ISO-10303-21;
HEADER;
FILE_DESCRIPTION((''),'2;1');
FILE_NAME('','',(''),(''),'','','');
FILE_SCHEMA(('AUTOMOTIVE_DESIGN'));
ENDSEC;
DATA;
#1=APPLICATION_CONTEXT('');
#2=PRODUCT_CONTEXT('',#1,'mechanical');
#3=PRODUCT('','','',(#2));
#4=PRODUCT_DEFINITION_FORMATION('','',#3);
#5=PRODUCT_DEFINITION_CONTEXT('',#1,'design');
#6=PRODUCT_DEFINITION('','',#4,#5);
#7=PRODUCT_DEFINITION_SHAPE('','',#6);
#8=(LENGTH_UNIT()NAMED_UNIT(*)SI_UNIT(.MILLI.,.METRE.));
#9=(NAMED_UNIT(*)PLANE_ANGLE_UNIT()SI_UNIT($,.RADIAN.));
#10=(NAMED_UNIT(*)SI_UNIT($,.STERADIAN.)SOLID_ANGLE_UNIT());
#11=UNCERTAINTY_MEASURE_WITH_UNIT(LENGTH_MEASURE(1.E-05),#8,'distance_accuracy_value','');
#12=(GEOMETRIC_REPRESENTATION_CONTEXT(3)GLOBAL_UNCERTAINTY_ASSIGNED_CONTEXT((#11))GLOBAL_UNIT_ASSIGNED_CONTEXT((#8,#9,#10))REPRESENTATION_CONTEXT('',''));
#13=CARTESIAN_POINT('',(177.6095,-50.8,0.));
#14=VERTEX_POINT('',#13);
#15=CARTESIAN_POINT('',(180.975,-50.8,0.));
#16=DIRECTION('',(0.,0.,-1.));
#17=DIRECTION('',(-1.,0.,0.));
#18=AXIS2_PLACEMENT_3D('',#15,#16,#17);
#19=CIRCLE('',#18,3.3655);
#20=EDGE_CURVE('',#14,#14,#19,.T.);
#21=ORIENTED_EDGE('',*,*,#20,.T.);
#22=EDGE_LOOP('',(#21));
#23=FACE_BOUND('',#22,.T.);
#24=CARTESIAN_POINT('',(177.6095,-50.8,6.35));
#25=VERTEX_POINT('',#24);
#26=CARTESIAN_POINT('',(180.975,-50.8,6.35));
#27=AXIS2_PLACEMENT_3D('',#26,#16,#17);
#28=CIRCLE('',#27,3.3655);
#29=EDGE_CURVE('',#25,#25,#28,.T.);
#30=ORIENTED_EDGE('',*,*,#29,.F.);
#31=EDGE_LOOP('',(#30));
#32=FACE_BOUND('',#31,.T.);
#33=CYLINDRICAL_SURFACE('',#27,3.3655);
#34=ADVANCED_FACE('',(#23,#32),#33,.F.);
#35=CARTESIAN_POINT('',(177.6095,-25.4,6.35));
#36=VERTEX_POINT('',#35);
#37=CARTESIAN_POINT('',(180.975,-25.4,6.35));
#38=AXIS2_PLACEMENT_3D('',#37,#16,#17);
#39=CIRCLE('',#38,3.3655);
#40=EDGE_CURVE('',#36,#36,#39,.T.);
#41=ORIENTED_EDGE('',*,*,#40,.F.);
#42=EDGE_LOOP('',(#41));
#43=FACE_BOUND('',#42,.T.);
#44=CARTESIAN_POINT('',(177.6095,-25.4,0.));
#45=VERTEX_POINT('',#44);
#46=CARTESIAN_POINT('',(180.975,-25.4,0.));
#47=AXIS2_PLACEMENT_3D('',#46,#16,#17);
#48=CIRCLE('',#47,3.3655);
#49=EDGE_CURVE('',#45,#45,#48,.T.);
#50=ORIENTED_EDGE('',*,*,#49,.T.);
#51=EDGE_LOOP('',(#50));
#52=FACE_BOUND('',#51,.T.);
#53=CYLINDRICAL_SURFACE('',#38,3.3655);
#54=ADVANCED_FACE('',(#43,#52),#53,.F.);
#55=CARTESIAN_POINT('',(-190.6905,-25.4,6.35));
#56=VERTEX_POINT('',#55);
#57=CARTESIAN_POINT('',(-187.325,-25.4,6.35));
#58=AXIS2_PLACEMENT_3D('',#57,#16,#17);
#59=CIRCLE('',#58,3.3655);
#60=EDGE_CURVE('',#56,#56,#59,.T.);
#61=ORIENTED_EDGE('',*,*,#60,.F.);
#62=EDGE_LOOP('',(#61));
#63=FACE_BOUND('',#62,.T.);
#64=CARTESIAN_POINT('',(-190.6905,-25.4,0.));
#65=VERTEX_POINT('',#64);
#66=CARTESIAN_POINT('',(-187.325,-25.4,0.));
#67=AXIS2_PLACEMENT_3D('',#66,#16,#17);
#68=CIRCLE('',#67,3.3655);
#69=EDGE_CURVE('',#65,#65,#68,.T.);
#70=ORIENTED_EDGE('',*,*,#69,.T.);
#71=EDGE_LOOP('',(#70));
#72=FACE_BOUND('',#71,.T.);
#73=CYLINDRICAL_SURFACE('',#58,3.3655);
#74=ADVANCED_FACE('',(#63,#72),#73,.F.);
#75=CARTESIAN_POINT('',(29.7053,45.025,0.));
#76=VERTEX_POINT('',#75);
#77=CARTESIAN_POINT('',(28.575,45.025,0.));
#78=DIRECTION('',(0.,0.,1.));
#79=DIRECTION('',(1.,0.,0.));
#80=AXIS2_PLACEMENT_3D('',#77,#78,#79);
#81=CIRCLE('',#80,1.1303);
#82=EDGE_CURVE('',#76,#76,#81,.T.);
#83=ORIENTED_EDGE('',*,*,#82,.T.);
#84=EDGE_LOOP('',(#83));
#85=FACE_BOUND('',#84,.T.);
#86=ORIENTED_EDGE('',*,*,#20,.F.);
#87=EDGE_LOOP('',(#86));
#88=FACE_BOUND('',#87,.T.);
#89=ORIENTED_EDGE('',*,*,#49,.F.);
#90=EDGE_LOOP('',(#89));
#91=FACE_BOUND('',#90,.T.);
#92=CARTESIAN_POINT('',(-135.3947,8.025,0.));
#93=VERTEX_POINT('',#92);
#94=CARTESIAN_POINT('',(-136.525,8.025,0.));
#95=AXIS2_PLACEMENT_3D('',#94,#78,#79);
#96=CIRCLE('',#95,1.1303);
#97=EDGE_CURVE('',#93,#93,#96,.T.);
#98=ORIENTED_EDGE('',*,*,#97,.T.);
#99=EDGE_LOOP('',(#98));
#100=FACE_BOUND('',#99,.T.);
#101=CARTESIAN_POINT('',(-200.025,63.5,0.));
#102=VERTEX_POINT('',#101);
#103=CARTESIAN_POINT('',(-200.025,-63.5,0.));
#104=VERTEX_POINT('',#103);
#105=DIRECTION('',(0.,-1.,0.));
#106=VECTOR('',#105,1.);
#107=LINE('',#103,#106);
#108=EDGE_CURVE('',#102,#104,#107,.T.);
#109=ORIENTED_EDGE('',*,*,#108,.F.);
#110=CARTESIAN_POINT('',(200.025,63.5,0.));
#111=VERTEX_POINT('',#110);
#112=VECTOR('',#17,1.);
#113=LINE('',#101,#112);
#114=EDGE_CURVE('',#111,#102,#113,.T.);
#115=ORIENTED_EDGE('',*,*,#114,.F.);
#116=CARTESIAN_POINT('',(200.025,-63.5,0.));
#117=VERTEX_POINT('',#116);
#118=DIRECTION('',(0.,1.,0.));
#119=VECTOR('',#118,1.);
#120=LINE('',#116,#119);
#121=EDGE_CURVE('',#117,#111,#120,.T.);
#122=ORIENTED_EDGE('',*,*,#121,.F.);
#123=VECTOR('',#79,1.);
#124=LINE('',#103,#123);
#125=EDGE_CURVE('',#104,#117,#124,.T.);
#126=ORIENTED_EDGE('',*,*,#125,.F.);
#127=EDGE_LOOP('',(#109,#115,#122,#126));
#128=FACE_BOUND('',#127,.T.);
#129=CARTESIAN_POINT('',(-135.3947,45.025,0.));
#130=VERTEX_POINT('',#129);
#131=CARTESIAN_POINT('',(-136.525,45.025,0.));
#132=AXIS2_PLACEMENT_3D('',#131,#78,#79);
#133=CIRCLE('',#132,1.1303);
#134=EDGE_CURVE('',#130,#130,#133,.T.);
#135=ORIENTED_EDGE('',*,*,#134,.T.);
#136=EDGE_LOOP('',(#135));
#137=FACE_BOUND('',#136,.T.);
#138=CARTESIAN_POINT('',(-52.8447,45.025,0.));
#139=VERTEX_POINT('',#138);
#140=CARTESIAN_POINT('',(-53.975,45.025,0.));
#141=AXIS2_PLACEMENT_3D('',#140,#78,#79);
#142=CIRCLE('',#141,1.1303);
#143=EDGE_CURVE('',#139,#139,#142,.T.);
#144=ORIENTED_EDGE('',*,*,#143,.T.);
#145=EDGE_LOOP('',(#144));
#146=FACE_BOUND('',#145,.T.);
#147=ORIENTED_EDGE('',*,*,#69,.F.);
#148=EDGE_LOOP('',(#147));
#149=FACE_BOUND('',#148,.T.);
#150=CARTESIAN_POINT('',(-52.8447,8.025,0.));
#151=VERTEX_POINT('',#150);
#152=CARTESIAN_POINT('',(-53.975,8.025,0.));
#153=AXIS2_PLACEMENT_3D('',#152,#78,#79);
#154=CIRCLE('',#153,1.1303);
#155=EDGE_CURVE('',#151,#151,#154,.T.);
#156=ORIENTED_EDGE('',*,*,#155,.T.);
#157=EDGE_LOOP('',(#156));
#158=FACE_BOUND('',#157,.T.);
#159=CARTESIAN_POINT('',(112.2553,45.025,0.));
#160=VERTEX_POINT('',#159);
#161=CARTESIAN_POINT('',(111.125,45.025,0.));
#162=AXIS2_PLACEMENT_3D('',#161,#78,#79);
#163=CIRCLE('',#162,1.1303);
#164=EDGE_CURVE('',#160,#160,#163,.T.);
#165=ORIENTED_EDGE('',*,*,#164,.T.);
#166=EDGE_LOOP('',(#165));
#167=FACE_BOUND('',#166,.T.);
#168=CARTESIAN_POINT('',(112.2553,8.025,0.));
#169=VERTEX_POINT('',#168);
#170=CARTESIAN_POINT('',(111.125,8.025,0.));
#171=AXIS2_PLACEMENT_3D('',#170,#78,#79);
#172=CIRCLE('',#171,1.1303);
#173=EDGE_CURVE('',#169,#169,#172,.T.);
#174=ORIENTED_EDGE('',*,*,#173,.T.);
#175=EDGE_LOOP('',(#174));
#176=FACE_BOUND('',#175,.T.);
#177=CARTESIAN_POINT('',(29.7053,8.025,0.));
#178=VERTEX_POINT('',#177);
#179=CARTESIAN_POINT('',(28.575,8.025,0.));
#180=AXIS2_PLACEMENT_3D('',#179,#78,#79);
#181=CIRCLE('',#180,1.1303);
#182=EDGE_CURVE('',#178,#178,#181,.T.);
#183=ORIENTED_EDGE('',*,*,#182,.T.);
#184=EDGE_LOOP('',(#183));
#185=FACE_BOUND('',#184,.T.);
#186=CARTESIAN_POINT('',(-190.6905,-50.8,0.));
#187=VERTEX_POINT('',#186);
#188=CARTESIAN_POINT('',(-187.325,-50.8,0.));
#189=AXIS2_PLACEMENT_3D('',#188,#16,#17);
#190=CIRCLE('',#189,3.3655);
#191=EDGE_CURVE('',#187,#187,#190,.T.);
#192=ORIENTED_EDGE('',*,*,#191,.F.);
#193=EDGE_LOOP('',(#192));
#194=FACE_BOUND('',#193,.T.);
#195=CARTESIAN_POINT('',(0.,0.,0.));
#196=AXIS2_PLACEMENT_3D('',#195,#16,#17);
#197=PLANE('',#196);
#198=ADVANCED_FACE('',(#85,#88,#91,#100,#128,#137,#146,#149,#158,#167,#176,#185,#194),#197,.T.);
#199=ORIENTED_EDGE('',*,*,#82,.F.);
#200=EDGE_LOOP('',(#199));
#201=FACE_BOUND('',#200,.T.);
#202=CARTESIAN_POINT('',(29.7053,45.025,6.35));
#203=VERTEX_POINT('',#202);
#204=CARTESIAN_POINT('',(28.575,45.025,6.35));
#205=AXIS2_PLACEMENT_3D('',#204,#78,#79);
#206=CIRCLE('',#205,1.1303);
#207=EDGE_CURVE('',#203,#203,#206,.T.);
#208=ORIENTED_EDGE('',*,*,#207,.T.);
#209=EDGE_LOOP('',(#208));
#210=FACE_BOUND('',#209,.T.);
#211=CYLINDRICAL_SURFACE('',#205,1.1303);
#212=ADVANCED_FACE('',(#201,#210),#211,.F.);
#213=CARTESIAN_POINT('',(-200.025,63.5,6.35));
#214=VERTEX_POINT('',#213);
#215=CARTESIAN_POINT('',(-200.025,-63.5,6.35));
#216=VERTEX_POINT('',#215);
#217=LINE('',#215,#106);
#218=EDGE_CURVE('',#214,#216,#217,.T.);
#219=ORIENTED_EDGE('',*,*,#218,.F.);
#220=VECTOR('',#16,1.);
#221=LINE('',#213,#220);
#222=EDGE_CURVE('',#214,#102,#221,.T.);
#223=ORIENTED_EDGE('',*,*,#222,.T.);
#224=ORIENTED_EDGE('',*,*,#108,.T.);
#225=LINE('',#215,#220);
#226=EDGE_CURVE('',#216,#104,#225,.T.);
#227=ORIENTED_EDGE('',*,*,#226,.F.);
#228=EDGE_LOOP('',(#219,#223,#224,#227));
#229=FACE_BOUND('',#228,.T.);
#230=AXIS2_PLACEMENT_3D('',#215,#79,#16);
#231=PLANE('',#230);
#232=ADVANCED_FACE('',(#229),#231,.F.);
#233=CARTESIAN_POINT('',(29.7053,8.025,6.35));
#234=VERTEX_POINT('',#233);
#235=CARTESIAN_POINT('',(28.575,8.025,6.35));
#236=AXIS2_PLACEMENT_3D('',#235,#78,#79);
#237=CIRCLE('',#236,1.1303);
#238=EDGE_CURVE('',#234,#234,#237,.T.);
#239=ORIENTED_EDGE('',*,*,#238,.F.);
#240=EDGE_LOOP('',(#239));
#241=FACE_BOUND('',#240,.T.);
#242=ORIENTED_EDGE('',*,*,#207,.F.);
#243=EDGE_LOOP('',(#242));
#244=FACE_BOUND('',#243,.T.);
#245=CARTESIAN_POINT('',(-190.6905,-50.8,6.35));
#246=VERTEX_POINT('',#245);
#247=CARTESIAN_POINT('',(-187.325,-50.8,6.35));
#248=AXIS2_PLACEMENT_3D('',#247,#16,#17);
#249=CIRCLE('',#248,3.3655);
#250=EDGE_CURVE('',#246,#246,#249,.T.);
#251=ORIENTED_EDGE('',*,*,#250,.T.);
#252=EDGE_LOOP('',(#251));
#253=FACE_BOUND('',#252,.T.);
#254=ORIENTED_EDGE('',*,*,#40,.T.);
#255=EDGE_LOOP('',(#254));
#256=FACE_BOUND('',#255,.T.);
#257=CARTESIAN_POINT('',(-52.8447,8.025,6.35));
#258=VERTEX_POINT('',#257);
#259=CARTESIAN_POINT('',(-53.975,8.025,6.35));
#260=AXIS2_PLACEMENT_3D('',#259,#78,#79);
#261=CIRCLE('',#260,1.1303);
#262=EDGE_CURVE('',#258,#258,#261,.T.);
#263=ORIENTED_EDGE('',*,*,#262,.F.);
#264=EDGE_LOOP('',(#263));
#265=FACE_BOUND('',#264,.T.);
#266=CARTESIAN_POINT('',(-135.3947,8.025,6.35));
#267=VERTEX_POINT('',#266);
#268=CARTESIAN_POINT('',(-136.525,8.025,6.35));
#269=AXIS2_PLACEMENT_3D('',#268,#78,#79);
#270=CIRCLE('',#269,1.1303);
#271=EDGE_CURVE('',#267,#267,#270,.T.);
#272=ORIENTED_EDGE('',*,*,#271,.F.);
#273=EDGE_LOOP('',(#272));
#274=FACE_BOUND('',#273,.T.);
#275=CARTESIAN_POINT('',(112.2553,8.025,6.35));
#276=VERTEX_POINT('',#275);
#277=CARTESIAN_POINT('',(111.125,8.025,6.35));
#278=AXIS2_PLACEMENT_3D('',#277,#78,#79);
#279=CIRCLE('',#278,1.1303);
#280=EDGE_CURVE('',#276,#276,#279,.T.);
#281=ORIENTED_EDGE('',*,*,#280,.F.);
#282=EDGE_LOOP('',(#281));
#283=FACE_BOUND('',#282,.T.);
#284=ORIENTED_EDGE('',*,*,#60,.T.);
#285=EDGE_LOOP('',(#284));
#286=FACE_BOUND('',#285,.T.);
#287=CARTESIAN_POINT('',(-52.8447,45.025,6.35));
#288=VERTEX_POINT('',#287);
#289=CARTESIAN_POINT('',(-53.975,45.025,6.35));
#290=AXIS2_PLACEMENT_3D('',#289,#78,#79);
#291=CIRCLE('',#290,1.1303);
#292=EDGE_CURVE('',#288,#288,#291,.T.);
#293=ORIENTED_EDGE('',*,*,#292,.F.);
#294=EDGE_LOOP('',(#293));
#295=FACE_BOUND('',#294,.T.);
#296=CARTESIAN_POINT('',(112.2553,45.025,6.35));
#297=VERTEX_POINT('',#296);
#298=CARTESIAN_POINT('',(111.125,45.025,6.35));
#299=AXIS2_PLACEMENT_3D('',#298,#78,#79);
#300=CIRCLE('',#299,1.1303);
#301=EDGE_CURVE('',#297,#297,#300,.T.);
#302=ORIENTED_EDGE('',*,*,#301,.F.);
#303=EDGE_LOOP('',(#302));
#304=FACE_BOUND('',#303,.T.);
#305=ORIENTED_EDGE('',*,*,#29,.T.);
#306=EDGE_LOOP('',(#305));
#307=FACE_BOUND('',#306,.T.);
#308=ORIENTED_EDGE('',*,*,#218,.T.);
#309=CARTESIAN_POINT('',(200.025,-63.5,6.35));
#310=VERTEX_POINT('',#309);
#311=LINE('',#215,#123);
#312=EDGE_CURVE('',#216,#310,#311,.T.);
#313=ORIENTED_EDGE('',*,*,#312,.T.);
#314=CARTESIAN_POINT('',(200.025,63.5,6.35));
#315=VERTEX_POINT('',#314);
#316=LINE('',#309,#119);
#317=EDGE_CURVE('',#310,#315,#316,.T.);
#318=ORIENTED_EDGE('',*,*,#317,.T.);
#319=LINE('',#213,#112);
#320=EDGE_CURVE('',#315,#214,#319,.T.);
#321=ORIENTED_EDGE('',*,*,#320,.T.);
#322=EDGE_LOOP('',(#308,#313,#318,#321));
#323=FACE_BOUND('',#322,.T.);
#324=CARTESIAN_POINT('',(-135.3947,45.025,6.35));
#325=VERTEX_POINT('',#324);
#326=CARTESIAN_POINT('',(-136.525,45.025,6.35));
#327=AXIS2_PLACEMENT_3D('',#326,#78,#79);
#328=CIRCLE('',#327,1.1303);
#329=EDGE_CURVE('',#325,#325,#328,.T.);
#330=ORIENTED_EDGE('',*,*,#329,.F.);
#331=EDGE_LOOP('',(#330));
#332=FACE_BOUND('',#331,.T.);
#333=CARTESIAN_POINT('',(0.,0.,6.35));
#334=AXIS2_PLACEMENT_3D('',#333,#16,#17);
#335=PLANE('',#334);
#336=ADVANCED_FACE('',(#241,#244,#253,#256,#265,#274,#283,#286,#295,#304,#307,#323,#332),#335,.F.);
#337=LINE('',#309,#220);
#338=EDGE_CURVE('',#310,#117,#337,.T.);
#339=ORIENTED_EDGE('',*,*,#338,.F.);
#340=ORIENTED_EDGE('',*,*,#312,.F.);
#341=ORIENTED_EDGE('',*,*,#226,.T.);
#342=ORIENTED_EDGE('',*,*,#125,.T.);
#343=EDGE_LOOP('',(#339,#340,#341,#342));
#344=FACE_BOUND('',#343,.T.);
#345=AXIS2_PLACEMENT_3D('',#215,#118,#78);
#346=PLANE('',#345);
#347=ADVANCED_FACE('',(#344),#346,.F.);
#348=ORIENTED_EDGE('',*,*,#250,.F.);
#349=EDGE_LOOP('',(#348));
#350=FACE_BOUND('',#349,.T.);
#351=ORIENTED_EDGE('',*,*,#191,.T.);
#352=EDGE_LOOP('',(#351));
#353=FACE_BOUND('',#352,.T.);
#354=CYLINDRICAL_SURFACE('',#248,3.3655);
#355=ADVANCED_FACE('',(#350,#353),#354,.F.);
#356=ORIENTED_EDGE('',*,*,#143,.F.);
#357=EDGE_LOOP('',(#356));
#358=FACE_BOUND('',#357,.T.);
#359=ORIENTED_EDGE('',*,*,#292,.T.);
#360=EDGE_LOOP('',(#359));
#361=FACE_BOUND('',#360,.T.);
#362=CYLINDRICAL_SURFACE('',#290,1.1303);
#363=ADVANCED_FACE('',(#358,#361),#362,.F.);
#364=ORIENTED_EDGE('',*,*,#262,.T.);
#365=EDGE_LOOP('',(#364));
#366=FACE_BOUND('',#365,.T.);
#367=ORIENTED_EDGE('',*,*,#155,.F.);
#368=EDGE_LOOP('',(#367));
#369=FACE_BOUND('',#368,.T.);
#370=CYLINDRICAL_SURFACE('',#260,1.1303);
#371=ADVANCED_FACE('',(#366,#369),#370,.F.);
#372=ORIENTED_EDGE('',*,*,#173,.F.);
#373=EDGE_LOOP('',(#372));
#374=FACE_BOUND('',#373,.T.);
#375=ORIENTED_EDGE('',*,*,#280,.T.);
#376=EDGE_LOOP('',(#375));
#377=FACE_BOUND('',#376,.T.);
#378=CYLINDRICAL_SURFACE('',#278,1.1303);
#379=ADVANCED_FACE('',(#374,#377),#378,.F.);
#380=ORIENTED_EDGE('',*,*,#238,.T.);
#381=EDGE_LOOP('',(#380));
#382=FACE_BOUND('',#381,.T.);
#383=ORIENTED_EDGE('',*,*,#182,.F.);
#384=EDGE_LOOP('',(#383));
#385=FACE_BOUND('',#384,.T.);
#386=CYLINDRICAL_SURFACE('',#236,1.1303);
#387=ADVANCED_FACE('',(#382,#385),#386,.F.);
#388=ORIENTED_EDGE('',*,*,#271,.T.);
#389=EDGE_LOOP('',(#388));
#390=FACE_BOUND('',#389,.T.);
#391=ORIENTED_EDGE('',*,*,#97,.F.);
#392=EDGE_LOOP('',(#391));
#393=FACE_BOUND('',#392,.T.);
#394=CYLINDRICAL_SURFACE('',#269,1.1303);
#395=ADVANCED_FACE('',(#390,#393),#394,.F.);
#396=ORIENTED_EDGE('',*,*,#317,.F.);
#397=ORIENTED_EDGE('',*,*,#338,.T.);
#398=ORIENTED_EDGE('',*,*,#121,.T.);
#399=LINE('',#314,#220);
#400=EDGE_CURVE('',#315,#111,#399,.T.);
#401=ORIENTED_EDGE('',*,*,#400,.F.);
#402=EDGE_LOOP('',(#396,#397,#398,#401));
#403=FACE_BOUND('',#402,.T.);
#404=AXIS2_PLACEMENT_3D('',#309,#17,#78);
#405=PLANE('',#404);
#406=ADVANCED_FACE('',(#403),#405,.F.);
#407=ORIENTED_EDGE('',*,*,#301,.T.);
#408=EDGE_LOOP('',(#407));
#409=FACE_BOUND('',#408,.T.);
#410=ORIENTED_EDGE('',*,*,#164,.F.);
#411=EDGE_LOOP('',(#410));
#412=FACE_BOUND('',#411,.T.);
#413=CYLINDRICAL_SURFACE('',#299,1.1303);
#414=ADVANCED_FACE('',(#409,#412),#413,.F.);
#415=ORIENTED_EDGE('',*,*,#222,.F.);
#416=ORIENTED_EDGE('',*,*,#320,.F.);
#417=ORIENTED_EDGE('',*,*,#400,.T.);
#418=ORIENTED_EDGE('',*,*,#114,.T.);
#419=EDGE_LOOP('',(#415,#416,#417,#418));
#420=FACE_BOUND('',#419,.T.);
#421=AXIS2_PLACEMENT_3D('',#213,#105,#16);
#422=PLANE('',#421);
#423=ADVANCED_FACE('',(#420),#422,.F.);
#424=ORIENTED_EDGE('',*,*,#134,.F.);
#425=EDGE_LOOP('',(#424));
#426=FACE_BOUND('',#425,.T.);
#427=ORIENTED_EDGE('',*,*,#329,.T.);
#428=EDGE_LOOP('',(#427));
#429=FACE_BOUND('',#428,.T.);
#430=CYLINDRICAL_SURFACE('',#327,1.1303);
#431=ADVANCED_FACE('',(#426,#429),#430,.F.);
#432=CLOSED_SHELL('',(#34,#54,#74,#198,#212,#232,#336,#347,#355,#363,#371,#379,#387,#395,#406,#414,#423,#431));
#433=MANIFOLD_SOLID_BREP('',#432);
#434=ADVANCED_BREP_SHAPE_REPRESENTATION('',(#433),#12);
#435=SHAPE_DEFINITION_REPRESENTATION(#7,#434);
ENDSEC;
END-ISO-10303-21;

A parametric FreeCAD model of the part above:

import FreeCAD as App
import Part
import Sketcher
from FreeCAD import Vector
Q = App.Units.Quantity

doc = App.newDocument("Part")
body = doc.addObject("PartDesign::Body", "Body")

# Sketch on XY plane
sketch1 = body.newObject("Sketcher::SketchObject", "Sketch")
sketch1.AttachmentSupport = (doc.getObject("XY_Plane"), [""])
sketch1.MapMode = "FlatFace"
sketch1.addGeometry([
    Part.LineSegment(Vector(-200, 64, 0), Vector(-200, -64, 0)),
    Part.LineSegment(Vector(-200, -64, 0), Vector(200, -64, 0)),
    Part.LineSegment(Vector(200, -64, 0), Vector(200, 64, 0)),
    Part.LineSegment(Vector(200, 64, 0), Vector(-200, 64, 0)),
], False)
sketch1.addConstraint([
    Sketcher.Constraint("Coincident", 0, 2, 1, 1),
    Sketcher.Constraint("Coincident", 1, 2, 2, 1),
    Sketcher.Constraint("Coincident", 2, 2, 3, 1),
    Sketcher.Constraint("Coincident", 3, 2, 0, 1),
    Sketcher.Constraint("Vertical", 0),
    Sketcher.Constraint("Horizontal", 1),
    Sketcher.Constraint("Vertical", 2),
    Sketcher.Constraint("Horizontal", 3),
    Sketcher.Constraint("Symmetric", 0, 2, 2, 2, -1, 1),
    Sketcher.Constraint("DistanceY", 0, 2, 0, 1, Q("5 in")),
    Sketcher.Constraint("DistanceX", 1, 1, 1, 2, Q("15.75 in")),
])
pad1 = body.newObject("PartDesign::Pad", "Pad")
pad1.Profile = sketch1
pad1.Length = Q("0.25 in")

# Sketch on XY plane
sketch2 = body.newObject("Sketcher::SketchObject", "Sketch001")
sketch2.AttachmentSupport = (doc.getObject("XY_Plane"), [""])
sketch2.MapMode = "FlatFace"
sketch2.addGeometry([
    Part.Circle(Vector(181, -50.8, 0), Vector(0, 0, 1), 3.4),
    Part.Circle(Vector(181, -25.4, 0), Vector(0, 0, 1), 3.4),
    Part.Circle(Vector(-187.3, -50.8, 0), Vector(0, 0, 1), 3.4),
    Part.Circle(Vector(-187.3, -25.4, 0), Vector(0, 0, 1), 3.4),
], False)
sketch2.addConstraint([
    Sketcher.Constraint("Equal", 0, 1),
    Sketcher.Constraint("Equal", 1, 2),
    Sketcher.Constraint("Equal", 2, 3),
    Sketcher.Constraint("Horizontal", 0, 3, 2, 3),
    Sketcher.Constraint("Horizontal", 1, 3, 3, 3),
    Sketcher.Constraint("Vertical", 0, 3, 1, 3),
    Sketcher.Constraint("Vertical", 2, 3, 3, 3),
    Sketcher.Constraint("Diameter", 0, Q("0.265 in")),
    Sketcher.Constraint("DistanceY", 0, 3, -1, 1, Q("2 in")),
    Sketcher.Constraint("DistanceY", 1, 3, -1, 1, Q("1 in")),
    Sketcher.Constraint("DistanceX", 2, 3, 0, 3, Q("14.5 in")),
    Sketcher.Constraint("DistanceX", -1, 1, 0, 3, Q("7.125 in")),
])
pocket1 = body.newObject("PartDesign::Pocket", "Pocket")
pocket1.Profile = sketch2
pocket1.Type = "ThroughAll"
pocket1.Reversed = True

# Sketch on XY plane
sketch3 = body.newObject("Sketcher::SketchObject", "Sketch002")
sketch3.AttachmentSupport = (doc.getObject("XY_Plane"), [""])
sketch3.MapMode = "FlatFace"
sketch3.AttachmentOffset = App.Placement(Vector(0, 0, 0.25 * 25.4), App.Rotation())
sketch3.addGeometry([
    Part.Circle(Vector(-136.5, 45, 0), Vector(0, 0, 1), 1.1),  # 0
    Part.Circle(Vector(-136.5, 8, 0), Vector(0, 0, 1), 1.1),  # 1
    Part.Circle(Vector(-54, 45, 0), Vector(0, 0, 1), 1.1),  # 2
    Part.Circle(Vector(-54, 8, 0), Vector(0, 0, 1), 1.1),  # 3
    Part.Circle(Vector(28.6, 45, 0), Vector(0, 0, 1), 1.1),  # 4
    Part.Circle(Vector(28.6, 8, 0), Vector(0, 0, 1), 1.1),  # 5
    Part.Circle(Vector(111.1, 45, 0), Vector(0, 0, 1), 1.1),  # 6
    Part.Circle(Vector(111.1, 8, 0), Vector(0, 0, 1), 1.1),  # 7
], False)
sketch3.addConstraint([
    Sketcher.Constraint("Equal", 0, 1),
    Sketcher.Constraint("Equal", 1, 2),
    Sketcher.Constraint("Equal", 2, 3),
    Sketcher.Constraint("Equal", 3, 4),
    Sketcher.Constraint("Equal", 4, 5),
    Sketcher.Constraint("Equal", 5, 6),
    Sketcher.Constraint("Equal", 6, 7),
    Sketcher.Constraint("Horizontal", 0, 3, 2, 3),
    Sketcher.Constraint("Horizontal", 1, 3, 3, 3),
    Sketcher.Constraint("Horizontal", 2, 3, 4, 3),
    Sketcher.Constraint("Horizontal", 3, 3, 5, 3),
    Sketcher.Constraint("Horizontal", 4, 3, 6, 3),
    Sketcher.Constraint("Horizontal", 5, 3, 7, 3),
    Sketcher.Constraint("Vertical", 0, 3, 1, 3),
    Sketcher.Constraint("Vertical", 2, 3, 3, 3),
    Sketcher.Constraint("Vertical", 4, 3, 5, 3),
    Sketcher.Constraint("Vertical", 6, 3, 7, 3),
    Sketcher.Constraint("Diameter", 0, Q("0.089 in")),
    Sketcher.Constraint("DistanceX", 0, 3, 4, 3, Q("6.5 in")),
    Sketcher.Constraint("DistanceX", 2, 3, 6, 3, Q("6.5 in")),
    Sketcher.Constraint("DistanceX", 0, 3, 2, 3, Q("3.25 in")),
    Sketcher.Constraint("DistanceX", 0, 3, -1, 1, Q("5.375 in")),
    Sketcher.Constraint("DistanceY", -1, 1, 0, 3, Q("45.025 mm")),
    Sketcher.Constraint("DistanceY", -1, 1, 1, 3, Q("8.025 mm")),
])
doc.recompute()
hole = body.newObject("PartDesign::Hole", "Hole")
hole.Profile = sketch3
hole.ThreadType = "None"
hole.Diameter = Q("0.089 in")
hole.DepthType = "ThroughAll"

doc.recompute()
